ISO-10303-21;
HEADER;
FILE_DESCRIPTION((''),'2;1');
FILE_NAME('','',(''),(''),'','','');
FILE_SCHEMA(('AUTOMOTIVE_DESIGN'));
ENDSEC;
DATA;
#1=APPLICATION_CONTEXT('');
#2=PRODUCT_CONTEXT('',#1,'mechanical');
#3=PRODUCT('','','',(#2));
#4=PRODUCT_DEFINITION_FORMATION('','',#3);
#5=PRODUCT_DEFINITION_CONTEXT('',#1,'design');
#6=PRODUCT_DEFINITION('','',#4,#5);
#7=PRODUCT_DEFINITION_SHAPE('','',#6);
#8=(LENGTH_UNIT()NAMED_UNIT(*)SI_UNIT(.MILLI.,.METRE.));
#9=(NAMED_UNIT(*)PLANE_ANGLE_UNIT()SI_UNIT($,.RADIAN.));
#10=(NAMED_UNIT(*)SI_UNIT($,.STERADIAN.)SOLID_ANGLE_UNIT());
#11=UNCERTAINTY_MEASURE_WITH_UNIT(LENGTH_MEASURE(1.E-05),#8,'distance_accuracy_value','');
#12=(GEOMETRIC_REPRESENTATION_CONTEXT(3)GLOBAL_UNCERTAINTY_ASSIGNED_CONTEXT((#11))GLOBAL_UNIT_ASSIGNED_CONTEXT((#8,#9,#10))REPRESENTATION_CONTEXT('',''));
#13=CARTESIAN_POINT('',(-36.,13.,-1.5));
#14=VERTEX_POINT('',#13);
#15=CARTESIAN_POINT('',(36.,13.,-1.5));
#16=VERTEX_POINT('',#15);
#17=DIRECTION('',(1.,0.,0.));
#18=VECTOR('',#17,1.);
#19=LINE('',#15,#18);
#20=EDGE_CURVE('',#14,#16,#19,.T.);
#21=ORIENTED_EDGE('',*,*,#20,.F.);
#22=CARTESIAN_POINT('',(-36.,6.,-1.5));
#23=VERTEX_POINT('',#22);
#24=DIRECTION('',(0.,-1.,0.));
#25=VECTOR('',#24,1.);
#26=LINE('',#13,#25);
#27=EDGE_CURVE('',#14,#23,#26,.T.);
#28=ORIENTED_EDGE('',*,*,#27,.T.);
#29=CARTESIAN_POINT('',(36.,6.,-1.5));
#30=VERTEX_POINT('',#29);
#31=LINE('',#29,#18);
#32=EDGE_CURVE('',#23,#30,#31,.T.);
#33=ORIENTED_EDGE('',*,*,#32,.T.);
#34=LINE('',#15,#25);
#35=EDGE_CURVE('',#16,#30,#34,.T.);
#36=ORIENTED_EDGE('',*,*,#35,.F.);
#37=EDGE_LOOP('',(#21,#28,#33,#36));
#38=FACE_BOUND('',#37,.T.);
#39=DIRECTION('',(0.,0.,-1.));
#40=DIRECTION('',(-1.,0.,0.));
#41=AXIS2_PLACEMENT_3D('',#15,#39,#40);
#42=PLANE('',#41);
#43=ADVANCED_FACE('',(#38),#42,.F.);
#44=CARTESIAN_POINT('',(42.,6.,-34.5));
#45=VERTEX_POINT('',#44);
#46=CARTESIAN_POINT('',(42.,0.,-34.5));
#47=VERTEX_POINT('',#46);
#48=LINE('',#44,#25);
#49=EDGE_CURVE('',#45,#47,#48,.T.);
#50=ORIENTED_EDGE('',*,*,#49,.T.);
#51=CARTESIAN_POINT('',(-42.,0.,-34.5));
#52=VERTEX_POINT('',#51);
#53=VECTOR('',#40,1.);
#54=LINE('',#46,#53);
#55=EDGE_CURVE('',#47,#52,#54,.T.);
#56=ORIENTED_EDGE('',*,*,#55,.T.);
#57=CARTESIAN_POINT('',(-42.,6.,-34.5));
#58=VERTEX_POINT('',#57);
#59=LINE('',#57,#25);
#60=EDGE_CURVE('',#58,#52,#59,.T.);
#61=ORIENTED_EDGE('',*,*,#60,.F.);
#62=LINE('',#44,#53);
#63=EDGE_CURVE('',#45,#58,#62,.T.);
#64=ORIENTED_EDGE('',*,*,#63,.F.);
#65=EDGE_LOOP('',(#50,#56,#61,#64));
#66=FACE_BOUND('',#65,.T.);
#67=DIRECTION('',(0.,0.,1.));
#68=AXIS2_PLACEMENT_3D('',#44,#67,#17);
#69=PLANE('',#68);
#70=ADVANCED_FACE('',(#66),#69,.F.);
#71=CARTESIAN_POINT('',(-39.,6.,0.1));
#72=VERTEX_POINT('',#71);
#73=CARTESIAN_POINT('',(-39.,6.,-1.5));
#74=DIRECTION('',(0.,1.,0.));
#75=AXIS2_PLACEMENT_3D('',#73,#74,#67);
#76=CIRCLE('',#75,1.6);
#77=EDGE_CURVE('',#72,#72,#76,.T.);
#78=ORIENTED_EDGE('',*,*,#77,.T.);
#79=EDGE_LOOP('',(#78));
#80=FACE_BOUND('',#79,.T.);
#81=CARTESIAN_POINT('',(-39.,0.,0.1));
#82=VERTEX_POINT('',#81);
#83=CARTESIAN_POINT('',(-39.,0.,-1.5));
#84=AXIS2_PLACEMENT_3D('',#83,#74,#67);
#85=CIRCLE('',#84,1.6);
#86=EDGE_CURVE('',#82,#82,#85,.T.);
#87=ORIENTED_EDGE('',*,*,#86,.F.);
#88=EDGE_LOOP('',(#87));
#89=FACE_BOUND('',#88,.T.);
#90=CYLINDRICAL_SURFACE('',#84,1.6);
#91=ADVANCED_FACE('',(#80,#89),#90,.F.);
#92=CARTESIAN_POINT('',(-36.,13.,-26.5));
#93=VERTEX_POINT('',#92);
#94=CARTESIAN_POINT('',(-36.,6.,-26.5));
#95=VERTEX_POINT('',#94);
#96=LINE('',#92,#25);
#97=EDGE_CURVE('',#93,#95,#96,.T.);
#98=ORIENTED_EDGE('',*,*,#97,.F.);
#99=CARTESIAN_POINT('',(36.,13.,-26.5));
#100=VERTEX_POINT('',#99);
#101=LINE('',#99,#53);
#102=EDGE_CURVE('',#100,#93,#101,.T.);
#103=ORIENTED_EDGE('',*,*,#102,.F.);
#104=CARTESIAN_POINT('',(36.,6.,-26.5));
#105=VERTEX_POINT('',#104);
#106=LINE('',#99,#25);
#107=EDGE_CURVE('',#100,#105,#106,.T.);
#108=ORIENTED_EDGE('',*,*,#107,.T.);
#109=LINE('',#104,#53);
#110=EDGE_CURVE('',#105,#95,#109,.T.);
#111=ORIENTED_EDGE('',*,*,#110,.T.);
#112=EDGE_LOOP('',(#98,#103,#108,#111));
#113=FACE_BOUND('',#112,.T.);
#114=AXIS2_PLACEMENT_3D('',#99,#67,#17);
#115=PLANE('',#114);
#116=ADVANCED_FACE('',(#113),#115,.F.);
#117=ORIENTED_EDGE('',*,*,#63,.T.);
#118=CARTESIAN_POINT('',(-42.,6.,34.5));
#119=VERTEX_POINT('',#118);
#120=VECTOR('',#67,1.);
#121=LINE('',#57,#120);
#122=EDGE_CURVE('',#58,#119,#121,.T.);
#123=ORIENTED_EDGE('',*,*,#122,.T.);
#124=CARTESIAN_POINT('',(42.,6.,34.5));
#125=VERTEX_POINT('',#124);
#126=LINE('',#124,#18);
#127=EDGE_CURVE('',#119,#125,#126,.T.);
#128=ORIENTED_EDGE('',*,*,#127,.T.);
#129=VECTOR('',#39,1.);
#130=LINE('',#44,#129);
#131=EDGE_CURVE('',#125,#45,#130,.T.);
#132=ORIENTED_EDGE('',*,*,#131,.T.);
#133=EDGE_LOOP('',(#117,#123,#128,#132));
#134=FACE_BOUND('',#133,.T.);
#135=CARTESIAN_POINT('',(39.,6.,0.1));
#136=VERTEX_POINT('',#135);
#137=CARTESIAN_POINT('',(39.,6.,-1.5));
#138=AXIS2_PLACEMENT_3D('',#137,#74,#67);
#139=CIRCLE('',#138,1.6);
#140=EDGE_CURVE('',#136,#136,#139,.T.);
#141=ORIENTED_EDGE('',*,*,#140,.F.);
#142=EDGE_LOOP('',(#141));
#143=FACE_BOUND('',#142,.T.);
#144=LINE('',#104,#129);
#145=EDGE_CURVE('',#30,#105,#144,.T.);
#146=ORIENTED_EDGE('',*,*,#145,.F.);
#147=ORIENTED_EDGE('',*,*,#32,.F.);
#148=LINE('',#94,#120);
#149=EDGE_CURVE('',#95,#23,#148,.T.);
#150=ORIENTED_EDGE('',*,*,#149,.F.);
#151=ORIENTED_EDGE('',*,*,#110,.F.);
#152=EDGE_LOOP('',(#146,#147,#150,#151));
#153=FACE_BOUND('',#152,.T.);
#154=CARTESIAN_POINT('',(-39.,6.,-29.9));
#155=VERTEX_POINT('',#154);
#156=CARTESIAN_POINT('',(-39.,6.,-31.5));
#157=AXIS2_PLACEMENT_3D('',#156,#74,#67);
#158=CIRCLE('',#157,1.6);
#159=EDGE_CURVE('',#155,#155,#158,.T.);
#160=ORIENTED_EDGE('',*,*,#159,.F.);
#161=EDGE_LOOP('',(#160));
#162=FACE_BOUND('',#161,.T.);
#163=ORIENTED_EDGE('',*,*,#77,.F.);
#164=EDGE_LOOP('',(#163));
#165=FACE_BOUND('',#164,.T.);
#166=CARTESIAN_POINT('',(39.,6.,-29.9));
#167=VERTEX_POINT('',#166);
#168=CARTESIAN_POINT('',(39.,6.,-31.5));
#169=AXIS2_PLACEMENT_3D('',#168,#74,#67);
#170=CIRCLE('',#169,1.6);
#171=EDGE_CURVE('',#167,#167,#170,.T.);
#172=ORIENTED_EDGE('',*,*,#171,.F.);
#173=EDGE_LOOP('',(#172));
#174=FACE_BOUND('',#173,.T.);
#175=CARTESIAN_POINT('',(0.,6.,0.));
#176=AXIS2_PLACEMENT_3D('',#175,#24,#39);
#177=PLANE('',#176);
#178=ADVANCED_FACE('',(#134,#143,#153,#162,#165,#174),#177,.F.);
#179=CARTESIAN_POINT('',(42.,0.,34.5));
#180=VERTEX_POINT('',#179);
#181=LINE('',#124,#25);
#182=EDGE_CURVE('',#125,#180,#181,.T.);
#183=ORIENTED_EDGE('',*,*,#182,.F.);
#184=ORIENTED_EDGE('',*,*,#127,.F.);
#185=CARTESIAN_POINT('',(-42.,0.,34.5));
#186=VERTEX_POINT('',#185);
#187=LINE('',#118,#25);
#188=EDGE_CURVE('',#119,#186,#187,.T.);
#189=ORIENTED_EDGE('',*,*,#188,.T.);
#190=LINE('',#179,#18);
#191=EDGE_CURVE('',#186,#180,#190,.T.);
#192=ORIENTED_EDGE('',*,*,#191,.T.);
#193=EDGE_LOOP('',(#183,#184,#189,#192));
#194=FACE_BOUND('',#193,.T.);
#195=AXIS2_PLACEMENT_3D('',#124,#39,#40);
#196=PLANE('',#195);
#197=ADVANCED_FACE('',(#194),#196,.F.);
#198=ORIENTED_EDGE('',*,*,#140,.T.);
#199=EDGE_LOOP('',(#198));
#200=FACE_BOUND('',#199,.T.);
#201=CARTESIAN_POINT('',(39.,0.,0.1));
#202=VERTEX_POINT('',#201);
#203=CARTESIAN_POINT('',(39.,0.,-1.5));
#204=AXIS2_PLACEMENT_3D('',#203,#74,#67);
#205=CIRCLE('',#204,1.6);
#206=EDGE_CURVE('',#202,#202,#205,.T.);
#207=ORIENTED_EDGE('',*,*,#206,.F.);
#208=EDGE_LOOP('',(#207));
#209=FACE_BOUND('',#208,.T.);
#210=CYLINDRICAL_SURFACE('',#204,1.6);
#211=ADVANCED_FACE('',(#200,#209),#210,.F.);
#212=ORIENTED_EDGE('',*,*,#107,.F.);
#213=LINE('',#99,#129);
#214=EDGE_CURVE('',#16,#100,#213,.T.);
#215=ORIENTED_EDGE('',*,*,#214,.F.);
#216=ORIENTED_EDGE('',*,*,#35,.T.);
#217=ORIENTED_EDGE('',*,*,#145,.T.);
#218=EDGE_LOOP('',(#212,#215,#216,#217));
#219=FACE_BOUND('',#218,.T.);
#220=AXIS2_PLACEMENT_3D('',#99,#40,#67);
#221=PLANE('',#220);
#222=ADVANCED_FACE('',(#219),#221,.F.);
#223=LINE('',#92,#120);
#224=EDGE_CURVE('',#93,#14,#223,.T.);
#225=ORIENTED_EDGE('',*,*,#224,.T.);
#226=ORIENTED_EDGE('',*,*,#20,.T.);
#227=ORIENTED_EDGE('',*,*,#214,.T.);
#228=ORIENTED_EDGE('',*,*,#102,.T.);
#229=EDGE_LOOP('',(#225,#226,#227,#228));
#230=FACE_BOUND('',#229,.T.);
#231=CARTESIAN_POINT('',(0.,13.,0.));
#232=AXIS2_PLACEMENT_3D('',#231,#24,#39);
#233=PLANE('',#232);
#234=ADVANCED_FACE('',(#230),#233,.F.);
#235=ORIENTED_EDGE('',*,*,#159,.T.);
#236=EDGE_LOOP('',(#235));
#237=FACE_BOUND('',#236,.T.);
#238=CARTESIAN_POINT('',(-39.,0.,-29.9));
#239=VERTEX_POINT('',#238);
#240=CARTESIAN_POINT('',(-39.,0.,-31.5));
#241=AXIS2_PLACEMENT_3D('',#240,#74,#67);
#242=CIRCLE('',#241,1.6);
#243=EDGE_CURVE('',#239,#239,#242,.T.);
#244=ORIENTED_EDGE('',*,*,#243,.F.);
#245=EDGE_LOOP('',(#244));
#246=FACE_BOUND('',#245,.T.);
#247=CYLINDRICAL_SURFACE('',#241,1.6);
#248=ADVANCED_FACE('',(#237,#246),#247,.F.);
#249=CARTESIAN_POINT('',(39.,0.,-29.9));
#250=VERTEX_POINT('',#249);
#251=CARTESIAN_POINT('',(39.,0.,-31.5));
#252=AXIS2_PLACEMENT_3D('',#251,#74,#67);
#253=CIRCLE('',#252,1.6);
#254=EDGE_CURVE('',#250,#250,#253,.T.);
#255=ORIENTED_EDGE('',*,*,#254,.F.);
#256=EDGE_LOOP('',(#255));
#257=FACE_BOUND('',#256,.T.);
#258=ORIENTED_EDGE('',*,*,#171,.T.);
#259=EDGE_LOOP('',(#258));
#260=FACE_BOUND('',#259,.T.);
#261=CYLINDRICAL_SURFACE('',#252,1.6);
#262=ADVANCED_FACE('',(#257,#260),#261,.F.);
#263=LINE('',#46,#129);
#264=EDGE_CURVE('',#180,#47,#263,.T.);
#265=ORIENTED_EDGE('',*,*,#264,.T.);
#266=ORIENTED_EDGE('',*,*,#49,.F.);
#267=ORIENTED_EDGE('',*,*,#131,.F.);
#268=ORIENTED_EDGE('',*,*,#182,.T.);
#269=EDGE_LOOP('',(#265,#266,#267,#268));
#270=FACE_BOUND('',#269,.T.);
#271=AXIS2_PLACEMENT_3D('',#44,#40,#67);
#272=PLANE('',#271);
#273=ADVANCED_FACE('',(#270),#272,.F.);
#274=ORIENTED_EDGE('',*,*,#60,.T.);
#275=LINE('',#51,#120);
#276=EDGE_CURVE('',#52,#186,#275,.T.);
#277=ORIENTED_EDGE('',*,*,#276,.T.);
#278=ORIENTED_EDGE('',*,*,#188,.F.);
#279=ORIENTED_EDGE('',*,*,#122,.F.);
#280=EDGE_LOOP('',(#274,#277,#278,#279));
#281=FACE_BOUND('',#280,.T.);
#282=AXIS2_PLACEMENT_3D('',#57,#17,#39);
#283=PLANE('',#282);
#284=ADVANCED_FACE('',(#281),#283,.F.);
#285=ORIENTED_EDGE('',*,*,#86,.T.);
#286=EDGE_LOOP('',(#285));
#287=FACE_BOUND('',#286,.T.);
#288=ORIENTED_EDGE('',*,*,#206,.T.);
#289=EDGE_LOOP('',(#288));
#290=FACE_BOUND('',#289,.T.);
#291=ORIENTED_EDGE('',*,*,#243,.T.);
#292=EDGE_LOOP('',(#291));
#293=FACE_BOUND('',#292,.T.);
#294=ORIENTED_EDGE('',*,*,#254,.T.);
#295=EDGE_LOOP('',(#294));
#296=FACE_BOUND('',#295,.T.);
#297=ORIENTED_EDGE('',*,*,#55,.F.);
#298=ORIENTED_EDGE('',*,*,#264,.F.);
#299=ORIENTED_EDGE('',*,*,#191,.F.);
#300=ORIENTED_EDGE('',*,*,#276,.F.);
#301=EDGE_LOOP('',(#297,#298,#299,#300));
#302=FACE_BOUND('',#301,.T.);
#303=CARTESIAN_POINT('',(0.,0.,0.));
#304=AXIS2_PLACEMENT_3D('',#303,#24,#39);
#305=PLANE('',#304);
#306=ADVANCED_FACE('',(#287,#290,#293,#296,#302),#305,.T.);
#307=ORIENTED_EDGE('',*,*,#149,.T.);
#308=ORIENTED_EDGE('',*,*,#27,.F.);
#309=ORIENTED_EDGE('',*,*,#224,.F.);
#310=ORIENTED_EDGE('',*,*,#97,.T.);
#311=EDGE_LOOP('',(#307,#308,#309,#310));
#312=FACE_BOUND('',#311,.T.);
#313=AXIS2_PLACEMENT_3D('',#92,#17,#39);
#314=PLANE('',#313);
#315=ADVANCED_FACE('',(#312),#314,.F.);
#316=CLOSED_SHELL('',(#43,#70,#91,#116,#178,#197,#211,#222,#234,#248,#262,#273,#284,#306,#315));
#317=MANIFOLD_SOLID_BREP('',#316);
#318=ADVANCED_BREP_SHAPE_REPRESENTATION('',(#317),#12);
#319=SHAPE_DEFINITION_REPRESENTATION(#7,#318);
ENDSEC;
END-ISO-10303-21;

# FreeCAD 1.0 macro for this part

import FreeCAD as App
import Part
import Sketcher

V = App.Vector

doc = App.newDocument("Part")
body = doc.addObject("PartDesign::Body", "Body")

sketch1 = body.newObject("Sketcher::SketchObject", "Sketch")
sketch1.AttachmentSupport = (doc.getObject("XZ_Plane"), [""])
sketch1.MapMode = "FlatFace"
sketch1.addGeometry(Part.LineSegment(V(-42, -34, 0), V(-42, 34, 0)), False)
sketch1.addGeometry(Part.LineSegment(V(-42, 34, 0), V(42, 34, 0)), False)
sketch1.addGeometry(Part.LineSegment(V(42, 34, 0), V(42, -34, 0)), False)
sketch1.addGeometry(Part.LineSegment(V(42, -34, 0), V(-42, -34, 0)), False)
sketch1.addConstraint(Sketcher.Constraint("Coincident", 0, 2, 1, 1))
sketch1.addConstraint(Sketcher.Constraint("Coincident", 1, 2, 2, 1))
sketch1.addConstraint(Sketcher.Constraint("Coincident", 2, 2, 3, 1))
sketch1.addConstraint(Sketcher.Constraint("Coincident", 3, 2, 0, 1))
sketch1.addConstraint(Sketcher.Constraint("Vertical", 0))
sketch1.addConstraint(Sketcher.Constraint("Horizontal", 1))
sketch1.addConstraint(Sketcher.Constraint("Vertical", 2))
sketch1.addConstraint(Sketcher.Constraint("Horizontal", 3))
sketch1.addConstraint(Sketcher.Constraint("Symmetric", 0, 2, 2, 2, -1, 1))
sketch1.addConstraint(Sketcher.Constraint("DistanceX", 1, 1, 1, 2, 84.0))
sketch1.addConstraint(Sketcher.Constraint("DistanceY", 0, 1, 0, 2, 69.0))
pad1 = body.newObject("PartDesign::Pad", "Pad")
pad1.Profile = sketch1
pad1.Length = 6
pad1.Reversed = True

sketch2 = body.newObject("Sketcher::SketchObject", "Sketch001")
sketch2.AttachmentSupport = (doc.getObject("XZ_Plane"), [""])
sketch2.MapMode = "FlatFace"
sketch2.AttachmentOffset = App.Placement(V(0, 0, -6), App.Rotation())
sketch2.addGeometry(Part.LineSegment(V(-36, -26, 0), V(-36, -2, 0)), False)
sketch2.addGeometry(Part.LineSegment(V(-36, -2, 0), V(36, -2, 0)), False)
sketch2.addGeometry(Part.LineSegment(V(36, -2, 0), V(36, -26, 0)), False)
sketch2.addGeometry(Part.LineSegment(V(36, -26, 0), V(-36, -26, 0)), False)
sketch2.addConstraint(Sketcher.Constraint("Coincident", 0, 2, 1, 1))
sketch2.addConstraint(Sketcher.Constraint("Coincident", 1, 2, 2, 1))
sketch2.addConstraint(Sketcher.Constraint("Coincident", 2, 2, 3, 1))
sketch2.addConstraint(Sketcher.Constraint("Coincident", 3, 2, 0, 1))
sketch2.addConstraint(Sketcher.Constraint("Vertical", 0))
sketch2.addConstraint(Sketcher.Constraint("Horizontal", 1))
sketch2.addConstraint(Sketcher.Constraint("Vertical", 2))
sketch2.addConstraint(Sketcher.Constraint("Horizontal", 3))
sketch2.addConstraint(Sketcher.Constraint("DistanceX", 1, 1, 1, 2, 72.0))
sketch2.addConstraint(Sketcher.Constraint("DistanceY", 0, 1, 0, 2, 25.0))
sketch2.addConstraint(Sketcher.Constraint("DistanceX", 0, 2, -1, 1, 36.0))
sketch2.addConstraint(Sketcher.Constraint("DistanceY", 0, 2, -1, 1, 1.5))
pad2 = body.newObject("PartDesign::Pad", "Pad001")
pad2.Profile = sketch2
pad2.Length = 7
pad2.Reversed = True

sketch3 = body.newObject("Sketcher::SketchObject", "Sketch002")
sketch3.AttachmentSupport = (doc.getObject("XZ_Plane"), [""])
sketch3.MapMode = "FlatFace"
sketch3.AttachmentOffset = App.Placement(V(0, 0, -6), App.Rotation())
sketch3.addGeometry(Part.Circle(V(-39, -31.5, 0), V(0, 0, 1), 1.6), False)
sketch3.addConstraint(Sketcher.Constraint("Diameter", 0, 3.2))
sketch3.addConstraint(Sketcher.Constraint("DistanceX", 0, 3, -1, 1, 39.0))
sketch3.addConstraint(Sketcher.Constraint("DistanceY", 0, 3, -1, 1, 31.5))
pocket1 = body.newObject("PartDesign::Pocket", "Pocket")
pocket1.Profile = sketch3
pocket1.Type = "ThroughAll"
pocket1.Reversed = True

sketch4 = body.newObject("Sketcher::SketchObject", "Sketch003")
sketch4.AttachmentSupport = (doc.getObject("XZ_Plane"), [""])
sketch4.MapMode = "FlatFace"
sketch4.AttachmentOffset = App.Placement(V(0, 0, -6), App.Rotation())
sketch4.addGeometry(Part.Circle(V(39, -31.5, 0), V(0, 0, 1), 1.6), False)
sketch4.addConstraint(Sketcher.Constraint("Diameter", 0, 3.2))
sketch4.addConstraint(Sketcher.Constraint("DistanceX", -1, 1, 0, 3, 39.0))
sketch4.addConstraint(Sketcher.Constraint("DistanceY", 0, 3, -1, 1, 31.5))
pocket2 = body.newObject("PartDesign::Pocket", "Pocket001")
pocket2.Profile = sketch4
pocket2.Type = "ThroughAll"
pocket2.Reversed = True

sketch5 = body.newObject("Sketcher::SketchObject", "Sketch004")
sketch5.AttachmentSupport = (doc.getObject("XZ_Plane"), [""])
sketch5.MapMode = "FlatFace"
sketch5.AttachmentOffset = App.Placement(V(0, 0, -6), App.Rotation())
sketch5.addGeometry(Part.Circle(V(-39, -1.5, 0), V(0, 0, 1), 1.6), False)
sketch5.addConstraint(Sketcher.Constraint("Diameter", 0, 3.2))
sketch5.addConstraint(Sketcher.Constraint("DistanceX", 0, 3, -1, 1, 39.0))
sketch5.addConstraint(Sketcher.Constraint("DistanceY", 0, 3, -1, 1, 1.5))
pocket3 = body.newObject("PartDesign::Pocket", "Pocket002")
pocket3.Profile = sketch5
pocket3.Type = "ThroughAll"
pocket3.Reversed = True

sketch6 = body.newObject("Sketcher::SketchObject", "Sketch005")
sketch6.AttachmentSupport = (doc.getObject("XZ_Plane"), [""])
sketch6.MapMode = "FlatFace"
sketch6.AttachmentOffset = App.Placement(V(0, 0, -6), App.Rotation())
sketch6.addGeometry(Part.Circle(V(39, -1.5, 0), V(0, 0, 1), 1.6), False)
sketch6.addConstraint(Sketcher.Constraint("Diameter", 0, 3.2))
sketch6.addConstraint(Sketcher.Constraint("DistanceX", -1, 1, 0, 3, 39.0))
sketch6.addConstraint(Sketcher.Constraint("DistanceY", 0, 3, -1, 1, 1.5))
pocket4 = body.newObject("PartDesign::Pocket", "Pocket003")
pocket4.Profile = sketch6
pocket4.Type = "ThroughAll"
pocket4.Reversed = True

doc.recompute()
